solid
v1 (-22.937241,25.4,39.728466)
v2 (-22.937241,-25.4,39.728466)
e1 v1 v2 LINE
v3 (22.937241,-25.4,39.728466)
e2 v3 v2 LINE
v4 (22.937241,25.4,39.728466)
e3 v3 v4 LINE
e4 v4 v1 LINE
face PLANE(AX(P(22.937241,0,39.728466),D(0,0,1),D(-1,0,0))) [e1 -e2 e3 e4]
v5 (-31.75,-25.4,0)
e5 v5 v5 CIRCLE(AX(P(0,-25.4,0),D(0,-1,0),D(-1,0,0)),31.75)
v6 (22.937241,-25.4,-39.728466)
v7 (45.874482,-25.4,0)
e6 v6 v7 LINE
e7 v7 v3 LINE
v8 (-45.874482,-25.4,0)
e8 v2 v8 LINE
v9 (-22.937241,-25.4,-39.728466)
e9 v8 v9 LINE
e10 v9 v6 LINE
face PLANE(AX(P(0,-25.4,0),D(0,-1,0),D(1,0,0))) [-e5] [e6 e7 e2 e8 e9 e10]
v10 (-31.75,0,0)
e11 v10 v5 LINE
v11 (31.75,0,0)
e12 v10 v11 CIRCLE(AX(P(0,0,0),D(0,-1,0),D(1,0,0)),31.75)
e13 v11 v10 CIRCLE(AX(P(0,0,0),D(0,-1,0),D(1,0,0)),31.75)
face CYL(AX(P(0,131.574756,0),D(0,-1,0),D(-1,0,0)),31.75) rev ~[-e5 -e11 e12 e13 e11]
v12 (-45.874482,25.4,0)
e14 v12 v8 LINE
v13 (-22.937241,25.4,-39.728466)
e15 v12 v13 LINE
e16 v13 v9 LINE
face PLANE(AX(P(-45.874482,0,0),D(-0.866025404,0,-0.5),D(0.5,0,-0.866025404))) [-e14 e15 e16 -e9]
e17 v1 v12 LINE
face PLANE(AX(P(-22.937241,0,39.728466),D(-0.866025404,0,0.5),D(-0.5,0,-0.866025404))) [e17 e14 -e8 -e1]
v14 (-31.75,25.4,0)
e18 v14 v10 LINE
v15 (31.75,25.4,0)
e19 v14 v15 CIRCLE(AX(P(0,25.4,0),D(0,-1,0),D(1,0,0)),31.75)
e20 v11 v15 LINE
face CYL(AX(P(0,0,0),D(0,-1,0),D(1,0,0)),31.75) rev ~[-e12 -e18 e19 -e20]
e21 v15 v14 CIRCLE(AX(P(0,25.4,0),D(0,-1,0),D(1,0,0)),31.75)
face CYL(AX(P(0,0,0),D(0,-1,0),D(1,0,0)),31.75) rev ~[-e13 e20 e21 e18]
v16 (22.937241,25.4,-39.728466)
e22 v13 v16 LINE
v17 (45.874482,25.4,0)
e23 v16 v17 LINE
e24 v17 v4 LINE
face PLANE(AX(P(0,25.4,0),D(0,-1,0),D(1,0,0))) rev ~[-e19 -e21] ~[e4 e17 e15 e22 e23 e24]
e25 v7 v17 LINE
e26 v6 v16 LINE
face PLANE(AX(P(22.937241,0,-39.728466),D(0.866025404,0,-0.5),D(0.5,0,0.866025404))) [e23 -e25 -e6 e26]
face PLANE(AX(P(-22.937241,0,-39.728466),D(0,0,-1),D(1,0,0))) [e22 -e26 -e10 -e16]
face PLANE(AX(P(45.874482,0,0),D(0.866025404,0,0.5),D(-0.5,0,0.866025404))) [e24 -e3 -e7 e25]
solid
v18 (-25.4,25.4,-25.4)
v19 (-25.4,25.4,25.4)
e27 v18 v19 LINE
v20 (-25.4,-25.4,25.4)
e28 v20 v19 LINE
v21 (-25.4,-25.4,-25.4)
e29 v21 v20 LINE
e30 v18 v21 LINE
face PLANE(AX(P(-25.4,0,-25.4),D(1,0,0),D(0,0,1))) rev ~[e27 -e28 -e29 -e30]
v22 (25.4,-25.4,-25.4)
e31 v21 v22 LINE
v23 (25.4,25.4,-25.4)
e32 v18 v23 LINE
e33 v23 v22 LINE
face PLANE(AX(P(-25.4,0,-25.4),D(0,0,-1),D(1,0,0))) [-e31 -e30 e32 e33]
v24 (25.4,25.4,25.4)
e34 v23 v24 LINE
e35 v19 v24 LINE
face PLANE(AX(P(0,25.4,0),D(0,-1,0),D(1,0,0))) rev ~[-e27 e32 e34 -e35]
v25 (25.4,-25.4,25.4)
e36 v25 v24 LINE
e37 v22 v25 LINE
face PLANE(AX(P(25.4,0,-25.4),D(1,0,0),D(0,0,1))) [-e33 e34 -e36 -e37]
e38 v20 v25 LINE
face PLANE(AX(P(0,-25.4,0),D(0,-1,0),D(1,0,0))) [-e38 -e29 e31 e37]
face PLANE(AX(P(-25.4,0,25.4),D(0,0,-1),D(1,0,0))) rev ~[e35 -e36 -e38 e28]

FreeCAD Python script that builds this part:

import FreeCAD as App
import Part
import Sketcher
from FreeCAD import Vector
Q = App.Units.Quantity


def add_polygon(sketch, points):
    """Adds a closed chain of lines whose ends are joined by coincident constraints."""
    first, n = sketch.GeometryCount, len(points)
    for a, b in zip(points, points[1:] + points[:1]):
        sketch.addGeometry(Part.LineSegment(App.Vector(*a, 0), App.Vector(*b, 0)), False)
    for i in range(n):
        sketch.addConstraint(Sketcher.Constraint("Coincident", first + i, 2, first + (i + 1) % n, 1))

doc = App.newDocument("Part")
body = doc.addObject("PartDesign::Body", "Body")

sketch1 = body.newObject("Sketcher::SketchObject", "Sketch")
sketch1.AttachmentSupport = (doc.getObject("XZ_Plane"), [""])
sketch1.MapMode = "FlatFace"
add_polygon(sketch1, [(23, 40), (-23, 40), (-46, 0), (-23, -40), (23, -40), (46, 0)])
sketch1.addConstraint(Sketcher.Constraint("Horizontal", 0))
sketch1.addConstraint(Sketcher.Constraint("Horizontal", 3))
sketch1.addConstraint(Sketcher.Constraint("Symmetric", 0, 2, 3, 2, -1, 1))
sketch1.addConstraint(Sketcher.Constraint("Symmetric", 1, 2, 4, 2, -1, 1))
sketch1.addConstraint(Sketcher.Constraint("PointOnObject", 1, 2, -1))
sketch1.addConstraint(Sketcher.Constraint("Parallel", 2, 5))
sketch1.addConstraint(Sketcher.Constraint("Vertical", 0, 2, 2, 2))
sketch1.addConstraint(Sketcher.Constraint("Angle", 1, Q("-120 deg")))
sketch1.addConstraint(Sketcher.Constraint("DistanceX", 0, 2, 0, 1, Q("45.874482 mm")))
sketch1.addConstraint(Sketcher.Constraint("Distance", 1, Q("45.874482 mm")))
pad1 = body.newObject("PartDesign::Pad", "Pad")
pad1.Profile = sketch1
pad1.Length = Q("2 in")
pad1.Midplane = True

sketch2 = body.newObject("Sketcher::SketchObject", "Sketch001")
sketch2.AttachmentSupport = (doc.getObject("XZ_Plane"), [""])
sketch2.MapMode = "FlatFace"
sketch2.addGeometry(Part.Circle(Vector(0, 0, 0), Vector(0, 0, 1), 32), False)
sketch2.addConstraint(Sketcher.Constraint("Coincident", 0, 3, -1, 1))
sketch2.addConstraint(Sketcher.Constraint("Diameter", 0, Q("2.5 in")))
pocket1 = body.newObject("PartDesign::Pocket", "Pocket")
pocket1.Profile = sketch2
pocket1.Type = "ThroughAll"

sketch3 = body.newObject("Sketcher::SketchObject", "Sketch002")
sketch3.AttachmentSupport = (doc.getObject("XZ_Plane"), [""])
sketch3.MapMode = "FlatFace"
sketch3.addGeometry(Part.Circle(Vector(0, 0, 0), Vector(0, 0, 1), 32), False)
sketch3.addConstraint(Sketcher.Constraint("Coincident", 0, 3, -1, 1))
sketch3.addConstraint(Sketcher.Constraint("Diameter", 0, Q("2.5 in")))
doc.recompute()
hole = body.newObject("PartDesign::Hole", "Hole")
hole.Profile = sketch3
hole.ThreadType = "None"
hole.Diameter = Q("2.5 in")
hole.DepthType = "ThroughAll"
hole.Reversed = True
body2 = doc.addObject("PartDesign::Body", "Body001")

sketch4 = body2.newObject("Sketcher::SketchObject", "Sketch003")
sketch4.AttachmentSupport = (doc.getObject("XZ_Plane001"), [""])
sketch4.MapMode = "FlatFace"
add_polygon(sketch4, [(-25, 25), (-25, -25), (25, -25), (25, 25)])
sketch4.addConstraint(Sketcher.Constraint("Vertical", 0))
sketch4.addConstraint(Sketcher.Constraint("Horizontal", 1))
sketch4.addConstraint(Sketcher.Constraint("Vertical", 2))
sketch4.addConstraint(Sketcher.Constraint("Horizontal", 3))
sketch4.addConstraint(Sketcher.Constraint("Symmetric", 0, 2, 2, 2, -1, 1))
sketch4.addConstraint(Sketcher.Constraint("Equal", 3, 0))
sketch4.addConstraint(Sketcher.Constraint("DistanceX", 1, 1, 1, 2, Q("2 in")))
pad2 = body2.newObject("PartDesign::Pad", "Pad001")
pad2.Profile = sketch4
pad2.Length = Q("2 in")
pad2.Midplane = True

doc.recompute()
